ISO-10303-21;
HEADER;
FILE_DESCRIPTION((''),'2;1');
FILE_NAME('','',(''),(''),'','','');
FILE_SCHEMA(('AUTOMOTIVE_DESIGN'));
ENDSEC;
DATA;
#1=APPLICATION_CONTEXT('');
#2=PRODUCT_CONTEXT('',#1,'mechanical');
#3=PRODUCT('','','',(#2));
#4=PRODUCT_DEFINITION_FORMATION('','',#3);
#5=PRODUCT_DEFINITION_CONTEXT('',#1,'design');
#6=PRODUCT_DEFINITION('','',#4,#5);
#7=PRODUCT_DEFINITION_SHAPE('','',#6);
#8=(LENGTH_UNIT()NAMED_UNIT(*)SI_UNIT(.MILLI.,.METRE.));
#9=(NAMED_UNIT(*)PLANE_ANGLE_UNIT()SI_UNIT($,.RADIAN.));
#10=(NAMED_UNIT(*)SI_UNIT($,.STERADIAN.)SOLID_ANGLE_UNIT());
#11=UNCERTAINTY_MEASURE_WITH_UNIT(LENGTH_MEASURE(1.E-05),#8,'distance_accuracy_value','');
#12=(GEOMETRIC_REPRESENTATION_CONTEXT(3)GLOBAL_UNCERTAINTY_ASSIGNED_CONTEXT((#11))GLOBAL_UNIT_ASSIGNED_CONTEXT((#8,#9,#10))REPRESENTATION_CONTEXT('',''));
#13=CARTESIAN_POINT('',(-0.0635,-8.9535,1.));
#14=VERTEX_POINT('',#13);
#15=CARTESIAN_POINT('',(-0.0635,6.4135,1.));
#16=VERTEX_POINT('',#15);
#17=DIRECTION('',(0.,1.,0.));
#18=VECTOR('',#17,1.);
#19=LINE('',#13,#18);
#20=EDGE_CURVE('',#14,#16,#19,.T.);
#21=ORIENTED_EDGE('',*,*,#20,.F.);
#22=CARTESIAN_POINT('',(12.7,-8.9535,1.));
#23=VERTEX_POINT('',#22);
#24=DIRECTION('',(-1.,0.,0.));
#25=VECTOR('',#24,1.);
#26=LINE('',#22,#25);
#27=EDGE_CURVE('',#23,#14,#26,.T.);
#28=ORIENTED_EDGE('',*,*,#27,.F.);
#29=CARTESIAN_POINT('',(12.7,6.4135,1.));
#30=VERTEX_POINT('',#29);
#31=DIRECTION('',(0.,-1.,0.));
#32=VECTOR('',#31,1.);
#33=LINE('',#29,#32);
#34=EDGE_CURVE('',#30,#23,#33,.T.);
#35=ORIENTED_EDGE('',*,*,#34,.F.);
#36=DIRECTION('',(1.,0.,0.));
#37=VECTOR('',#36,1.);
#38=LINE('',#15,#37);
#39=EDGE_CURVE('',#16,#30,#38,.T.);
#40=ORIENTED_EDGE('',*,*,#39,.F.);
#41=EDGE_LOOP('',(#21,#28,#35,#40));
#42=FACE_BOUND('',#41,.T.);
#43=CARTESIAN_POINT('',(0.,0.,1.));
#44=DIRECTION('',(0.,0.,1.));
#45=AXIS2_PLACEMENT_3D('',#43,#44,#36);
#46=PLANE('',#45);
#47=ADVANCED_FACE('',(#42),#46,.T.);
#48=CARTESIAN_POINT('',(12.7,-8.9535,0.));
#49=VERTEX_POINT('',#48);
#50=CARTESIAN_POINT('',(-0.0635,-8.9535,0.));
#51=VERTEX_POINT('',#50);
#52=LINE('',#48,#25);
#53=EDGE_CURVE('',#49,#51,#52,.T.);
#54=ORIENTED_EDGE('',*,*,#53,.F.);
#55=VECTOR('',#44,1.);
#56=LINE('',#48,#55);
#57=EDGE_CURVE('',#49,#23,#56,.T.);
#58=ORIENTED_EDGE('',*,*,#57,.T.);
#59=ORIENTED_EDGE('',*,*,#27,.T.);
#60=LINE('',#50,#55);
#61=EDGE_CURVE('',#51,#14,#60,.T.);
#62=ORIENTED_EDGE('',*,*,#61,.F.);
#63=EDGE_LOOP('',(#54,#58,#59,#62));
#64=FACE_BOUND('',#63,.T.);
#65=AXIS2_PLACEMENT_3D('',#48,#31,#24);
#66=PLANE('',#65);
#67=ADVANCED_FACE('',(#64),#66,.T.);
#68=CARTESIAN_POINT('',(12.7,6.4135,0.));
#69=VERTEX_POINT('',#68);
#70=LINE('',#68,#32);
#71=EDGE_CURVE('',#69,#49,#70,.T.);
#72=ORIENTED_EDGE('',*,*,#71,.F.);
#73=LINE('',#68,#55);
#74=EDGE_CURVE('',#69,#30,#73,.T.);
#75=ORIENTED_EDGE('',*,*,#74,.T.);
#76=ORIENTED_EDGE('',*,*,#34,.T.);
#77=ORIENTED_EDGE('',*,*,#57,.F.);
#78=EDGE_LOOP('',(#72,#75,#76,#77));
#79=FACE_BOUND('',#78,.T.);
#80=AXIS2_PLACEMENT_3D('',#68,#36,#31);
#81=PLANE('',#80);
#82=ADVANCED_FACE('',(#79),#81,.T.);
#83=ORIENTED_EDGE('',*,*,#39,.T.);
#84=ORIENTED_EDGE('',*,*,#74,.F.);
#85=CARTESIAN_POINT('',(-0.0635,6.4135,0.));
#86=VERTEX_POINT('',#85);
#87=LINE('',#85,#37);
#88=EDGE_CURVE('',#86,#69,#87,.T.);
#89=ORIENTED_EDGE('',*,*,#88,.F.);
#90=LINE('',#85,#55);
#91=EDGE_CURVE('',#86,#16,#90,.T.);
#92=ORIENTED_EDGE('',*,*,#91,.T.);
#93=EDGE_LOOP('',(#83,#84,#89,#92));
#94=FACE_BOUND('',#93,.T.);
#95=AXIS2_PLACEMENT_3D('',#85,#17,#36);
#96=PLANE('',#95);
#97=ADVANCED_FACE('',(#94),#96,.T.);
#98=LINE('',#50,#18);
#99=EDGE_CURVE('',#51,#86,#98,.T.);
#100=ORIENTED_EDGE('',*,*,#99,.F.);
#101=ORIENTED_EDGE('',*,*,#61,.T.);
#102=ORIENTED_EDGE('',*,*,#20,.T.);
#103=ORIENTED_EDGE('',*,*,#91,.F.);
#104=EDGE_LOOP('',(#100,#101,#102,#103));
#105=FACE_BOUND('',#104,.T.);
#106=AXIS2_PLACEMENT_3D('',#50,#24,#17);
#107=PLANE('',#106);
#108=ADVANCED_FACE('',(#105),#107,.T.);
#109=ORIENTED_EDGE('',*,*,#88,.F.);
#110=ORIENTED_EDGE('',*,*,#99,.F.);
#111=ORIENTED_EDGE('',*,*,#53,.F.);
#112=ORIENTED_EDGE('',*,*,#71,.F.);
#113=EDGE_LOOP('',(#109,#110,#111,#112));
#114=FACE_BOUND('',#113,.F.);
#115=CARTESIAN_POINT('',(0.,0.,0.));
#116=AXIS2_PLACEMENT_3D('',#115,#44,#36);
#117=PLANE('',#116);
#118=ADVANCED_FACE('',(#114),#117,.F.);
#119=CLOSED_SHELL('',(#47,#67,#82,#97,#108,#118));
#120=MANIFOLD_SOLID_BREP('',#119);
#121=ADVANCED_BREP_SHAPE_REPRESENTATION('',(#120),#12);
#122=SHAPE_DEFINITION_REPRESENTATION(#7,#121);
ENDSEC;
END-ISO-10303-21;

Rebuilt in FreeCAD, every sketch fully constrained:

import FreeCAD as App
import Part
import Sketcher

V = App.Vector


def add_polygon(sketch, points):
    """Adds a closed chain of lines whose ends are joined by coincident constraints."""
    first, n = sketch.GeometryCount, len(points)
    for a, b in zip(points, points[1:] + points[:1]):
        sketch.addGeometry(Part.LineSegment(App.Vector(*a, 0), App.Vector(*b, 0)), False)
    for i in range(n):
        sketch.addConstraint(Sketcher.Constraint("Coincident", first + i, 2, first + (i + 1) % n, 1))

doc = App.newDocument("Part")
body = doc.addObject("PartDesign::Body", "Body")

sketch1 = body.newObject("Sketcher::SketchObject", "Sketch")
sketch1.AttachmentSupport = (doc.getObject("XY_Plane"), [""])
sketch1.MapMode = "FlatFace"
add_polygon(sketch1, [(13, 6), (0, 6), (0, -9), (13, -9)])
sketch1.addConstraint([
    Sketcher.Constraint("Horizontal", 0),
    Sketcher.Constraint("Vertical", 1),
    Sketcher.Constraint("Horizontal", 2),
    Sketcher.Constraint("Vertical", 3),
    Sketcher.Constraint("DistanceX", -1, 1, 2, 2, 12.7),
    Sketcher.Constraint("DistanceY", 1, 2, 1, 1, 15.367),
    Sketcher.Constraint("DistanceX", 0, 2, 0, 1, 12.7635),
    Sketcher.Constraint("DistanceY", -1, 1, 0, 2, 6.4135),
])
pad1 = body.newObject("PartDesign::Pad", "Pad")
pad1.Profile = sketch1
pad1.Length = 1

doc.recompute()
